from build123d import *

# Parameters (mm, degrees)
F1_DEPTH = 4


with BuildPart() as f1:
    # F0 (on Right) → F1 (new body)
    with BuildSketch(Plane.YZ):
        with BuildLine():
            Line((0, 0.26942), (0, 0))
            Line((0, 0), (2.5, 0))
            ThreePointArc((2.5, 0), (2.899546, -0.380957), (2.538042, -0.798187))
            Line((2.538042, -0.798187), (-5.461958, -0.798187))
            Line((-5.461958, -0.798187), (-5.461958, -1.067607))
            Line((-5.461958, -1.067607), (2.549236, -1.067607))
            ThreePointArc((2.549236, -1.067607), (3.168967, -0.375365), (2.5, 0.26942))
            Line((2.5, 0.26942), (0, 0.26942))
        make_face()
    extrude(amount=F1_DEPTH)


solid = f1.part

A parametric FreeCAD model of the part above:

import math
import FreeCAD as App
import Part
import Sketcher
Q = App.Units.Quantity

doc = App.newDocument("Part")
params = doc.addObject("Spreadsheet::Sheet", "Params")
for row, (alias, value) in enumerate([
    ("sketch1_radius", "0.4 mm"),
    ("sketch1_width", "8 mm"),
    ("sketch1_width2", "2.5 mm"),
    ("pad1_length", "4 mm"),
], start=1):
    params.set(f"A{row}", alias)
    params.set(f"B{row}", "=" + value)
    params.setAlias(f"B{row}", alias)

body = doc.addObject("PartDesign::Body", "Body")

sketch1 = doc.addObject("Sketcher::SketchObject", "Sketch")
body.addObject(sketch1)
sketch1.AttachmentSupport = (doc.YZ_Plane, [""])
sketch1.MapMode = "FlatFace"
sketch1.addGeometry([
    Part.LineSegment(App.Vector(0, 0.26942, 0), App.Vector(0, 0, 0)),
    Part.LineSegment(App.Vector(0, 0, 0), App.Vector(2.5, 0, 0)),
    Part.ArcOfCircle(Part.Circle(App.Vector(2.499999, -0.4, 0), App.Vector(0, 0, 1), 0.4), math.radians(-84.542563), math.radians(89.999926)),
    Part.LineSegment(App.Vector(2.538042, -0.798187, 0), App.Vector(-5.461958, -0.798187, 0)),
    Part.LineSegment(App.Vector(-5.461958, -0.798187, 0), App.Vector(-5.461958, -1.067607, 0)),
    Part.LineSegment(App.Vector(-5.461958, -1.067607, 0), App.Vector(2.549236, -1.067607, 0)),
    Part.ArcOfCircle(Part.Circle(App.Vector(2.5, -0.4, 0), App.Vector(0, 0, 1), 0.66942), math.radians(-85.782108), math.radians(90.000034)),
    Part.LineSegment(App.Vector(2.5, 0.26942, 0), App.Vector(0, 0.26942, 0)),
], False)
sketch1.addConstraint([
    Sketcher.Constraint("Coincident", 0, 2, 1, 1),
    Sketcher.Constraint("Tangent", 1, 2, 2, 2),
    Sketcher.Constraint("Coincident", 2, 1, 3, 1),
    Sketcher.Constraint("Coincident", 3, 2, 4, 1),
    Sketcher.Constraint("Coincident", 4, 2, 5, 1),
    Sketcher.Constraint("Coincident", 5, 2, 6, 1),
    Sketcher.Constraint("Tangent", 6, 2, 7, 1),
    Sketcher.Constraint("Coincident", 7, 2, 0, 1),
    Sketcher.Constraint("Vertical", 0),
    Sketcher.Constraint("Horizontal", 1),
    Sketcher.Constraint("Horizontal", 3),
    Sketcher.Constraint("Vertical", 4),
    Sketcher.Constraint("Horizontal", 5),
    Sketcher.Constraint("Horizontal", 7),
    Sketcher.Constraint("Coincident", 0, 2, -1, 1),
    Sketcher.Constraint("Coincident", 6, 3, 2, 3),
    Sketcher.Constraint("Equal", 0, 4),
    Sketcher.Constraint("Radius", 2, Q("0.4 mm")),
    Sketcher.Constraint("DistanceX", 3, 2, 3, 1, Q("8 mm")),
    Sketcher.Constraint("DistanceX", 1, 1, 1, 2, Q("2.5 mm")),
    Sketcher.Constraint("Radius", 6, Q("0.66942 mm")),
    Sketcher.Constraint("DistanceX", 5, 1, 5, 2, Q("8.011194 mm")),
])
sketch1.setExpression("Constraints[17]", "Params.sketch1_radius")
sketch1.setExpression("Constraints[18]", "Params.sketch1_width")
sketch1.setExpression("Constraints[19]", "Params.sketch1_width2")
pad1 = doc.addObject("PartDesign::Pad", "Pad")
body.addObject(pad1)
pad1.Profile = sketch1
pad1.setExpression("Length", "Params.pad1_length")

doc.recompute()
